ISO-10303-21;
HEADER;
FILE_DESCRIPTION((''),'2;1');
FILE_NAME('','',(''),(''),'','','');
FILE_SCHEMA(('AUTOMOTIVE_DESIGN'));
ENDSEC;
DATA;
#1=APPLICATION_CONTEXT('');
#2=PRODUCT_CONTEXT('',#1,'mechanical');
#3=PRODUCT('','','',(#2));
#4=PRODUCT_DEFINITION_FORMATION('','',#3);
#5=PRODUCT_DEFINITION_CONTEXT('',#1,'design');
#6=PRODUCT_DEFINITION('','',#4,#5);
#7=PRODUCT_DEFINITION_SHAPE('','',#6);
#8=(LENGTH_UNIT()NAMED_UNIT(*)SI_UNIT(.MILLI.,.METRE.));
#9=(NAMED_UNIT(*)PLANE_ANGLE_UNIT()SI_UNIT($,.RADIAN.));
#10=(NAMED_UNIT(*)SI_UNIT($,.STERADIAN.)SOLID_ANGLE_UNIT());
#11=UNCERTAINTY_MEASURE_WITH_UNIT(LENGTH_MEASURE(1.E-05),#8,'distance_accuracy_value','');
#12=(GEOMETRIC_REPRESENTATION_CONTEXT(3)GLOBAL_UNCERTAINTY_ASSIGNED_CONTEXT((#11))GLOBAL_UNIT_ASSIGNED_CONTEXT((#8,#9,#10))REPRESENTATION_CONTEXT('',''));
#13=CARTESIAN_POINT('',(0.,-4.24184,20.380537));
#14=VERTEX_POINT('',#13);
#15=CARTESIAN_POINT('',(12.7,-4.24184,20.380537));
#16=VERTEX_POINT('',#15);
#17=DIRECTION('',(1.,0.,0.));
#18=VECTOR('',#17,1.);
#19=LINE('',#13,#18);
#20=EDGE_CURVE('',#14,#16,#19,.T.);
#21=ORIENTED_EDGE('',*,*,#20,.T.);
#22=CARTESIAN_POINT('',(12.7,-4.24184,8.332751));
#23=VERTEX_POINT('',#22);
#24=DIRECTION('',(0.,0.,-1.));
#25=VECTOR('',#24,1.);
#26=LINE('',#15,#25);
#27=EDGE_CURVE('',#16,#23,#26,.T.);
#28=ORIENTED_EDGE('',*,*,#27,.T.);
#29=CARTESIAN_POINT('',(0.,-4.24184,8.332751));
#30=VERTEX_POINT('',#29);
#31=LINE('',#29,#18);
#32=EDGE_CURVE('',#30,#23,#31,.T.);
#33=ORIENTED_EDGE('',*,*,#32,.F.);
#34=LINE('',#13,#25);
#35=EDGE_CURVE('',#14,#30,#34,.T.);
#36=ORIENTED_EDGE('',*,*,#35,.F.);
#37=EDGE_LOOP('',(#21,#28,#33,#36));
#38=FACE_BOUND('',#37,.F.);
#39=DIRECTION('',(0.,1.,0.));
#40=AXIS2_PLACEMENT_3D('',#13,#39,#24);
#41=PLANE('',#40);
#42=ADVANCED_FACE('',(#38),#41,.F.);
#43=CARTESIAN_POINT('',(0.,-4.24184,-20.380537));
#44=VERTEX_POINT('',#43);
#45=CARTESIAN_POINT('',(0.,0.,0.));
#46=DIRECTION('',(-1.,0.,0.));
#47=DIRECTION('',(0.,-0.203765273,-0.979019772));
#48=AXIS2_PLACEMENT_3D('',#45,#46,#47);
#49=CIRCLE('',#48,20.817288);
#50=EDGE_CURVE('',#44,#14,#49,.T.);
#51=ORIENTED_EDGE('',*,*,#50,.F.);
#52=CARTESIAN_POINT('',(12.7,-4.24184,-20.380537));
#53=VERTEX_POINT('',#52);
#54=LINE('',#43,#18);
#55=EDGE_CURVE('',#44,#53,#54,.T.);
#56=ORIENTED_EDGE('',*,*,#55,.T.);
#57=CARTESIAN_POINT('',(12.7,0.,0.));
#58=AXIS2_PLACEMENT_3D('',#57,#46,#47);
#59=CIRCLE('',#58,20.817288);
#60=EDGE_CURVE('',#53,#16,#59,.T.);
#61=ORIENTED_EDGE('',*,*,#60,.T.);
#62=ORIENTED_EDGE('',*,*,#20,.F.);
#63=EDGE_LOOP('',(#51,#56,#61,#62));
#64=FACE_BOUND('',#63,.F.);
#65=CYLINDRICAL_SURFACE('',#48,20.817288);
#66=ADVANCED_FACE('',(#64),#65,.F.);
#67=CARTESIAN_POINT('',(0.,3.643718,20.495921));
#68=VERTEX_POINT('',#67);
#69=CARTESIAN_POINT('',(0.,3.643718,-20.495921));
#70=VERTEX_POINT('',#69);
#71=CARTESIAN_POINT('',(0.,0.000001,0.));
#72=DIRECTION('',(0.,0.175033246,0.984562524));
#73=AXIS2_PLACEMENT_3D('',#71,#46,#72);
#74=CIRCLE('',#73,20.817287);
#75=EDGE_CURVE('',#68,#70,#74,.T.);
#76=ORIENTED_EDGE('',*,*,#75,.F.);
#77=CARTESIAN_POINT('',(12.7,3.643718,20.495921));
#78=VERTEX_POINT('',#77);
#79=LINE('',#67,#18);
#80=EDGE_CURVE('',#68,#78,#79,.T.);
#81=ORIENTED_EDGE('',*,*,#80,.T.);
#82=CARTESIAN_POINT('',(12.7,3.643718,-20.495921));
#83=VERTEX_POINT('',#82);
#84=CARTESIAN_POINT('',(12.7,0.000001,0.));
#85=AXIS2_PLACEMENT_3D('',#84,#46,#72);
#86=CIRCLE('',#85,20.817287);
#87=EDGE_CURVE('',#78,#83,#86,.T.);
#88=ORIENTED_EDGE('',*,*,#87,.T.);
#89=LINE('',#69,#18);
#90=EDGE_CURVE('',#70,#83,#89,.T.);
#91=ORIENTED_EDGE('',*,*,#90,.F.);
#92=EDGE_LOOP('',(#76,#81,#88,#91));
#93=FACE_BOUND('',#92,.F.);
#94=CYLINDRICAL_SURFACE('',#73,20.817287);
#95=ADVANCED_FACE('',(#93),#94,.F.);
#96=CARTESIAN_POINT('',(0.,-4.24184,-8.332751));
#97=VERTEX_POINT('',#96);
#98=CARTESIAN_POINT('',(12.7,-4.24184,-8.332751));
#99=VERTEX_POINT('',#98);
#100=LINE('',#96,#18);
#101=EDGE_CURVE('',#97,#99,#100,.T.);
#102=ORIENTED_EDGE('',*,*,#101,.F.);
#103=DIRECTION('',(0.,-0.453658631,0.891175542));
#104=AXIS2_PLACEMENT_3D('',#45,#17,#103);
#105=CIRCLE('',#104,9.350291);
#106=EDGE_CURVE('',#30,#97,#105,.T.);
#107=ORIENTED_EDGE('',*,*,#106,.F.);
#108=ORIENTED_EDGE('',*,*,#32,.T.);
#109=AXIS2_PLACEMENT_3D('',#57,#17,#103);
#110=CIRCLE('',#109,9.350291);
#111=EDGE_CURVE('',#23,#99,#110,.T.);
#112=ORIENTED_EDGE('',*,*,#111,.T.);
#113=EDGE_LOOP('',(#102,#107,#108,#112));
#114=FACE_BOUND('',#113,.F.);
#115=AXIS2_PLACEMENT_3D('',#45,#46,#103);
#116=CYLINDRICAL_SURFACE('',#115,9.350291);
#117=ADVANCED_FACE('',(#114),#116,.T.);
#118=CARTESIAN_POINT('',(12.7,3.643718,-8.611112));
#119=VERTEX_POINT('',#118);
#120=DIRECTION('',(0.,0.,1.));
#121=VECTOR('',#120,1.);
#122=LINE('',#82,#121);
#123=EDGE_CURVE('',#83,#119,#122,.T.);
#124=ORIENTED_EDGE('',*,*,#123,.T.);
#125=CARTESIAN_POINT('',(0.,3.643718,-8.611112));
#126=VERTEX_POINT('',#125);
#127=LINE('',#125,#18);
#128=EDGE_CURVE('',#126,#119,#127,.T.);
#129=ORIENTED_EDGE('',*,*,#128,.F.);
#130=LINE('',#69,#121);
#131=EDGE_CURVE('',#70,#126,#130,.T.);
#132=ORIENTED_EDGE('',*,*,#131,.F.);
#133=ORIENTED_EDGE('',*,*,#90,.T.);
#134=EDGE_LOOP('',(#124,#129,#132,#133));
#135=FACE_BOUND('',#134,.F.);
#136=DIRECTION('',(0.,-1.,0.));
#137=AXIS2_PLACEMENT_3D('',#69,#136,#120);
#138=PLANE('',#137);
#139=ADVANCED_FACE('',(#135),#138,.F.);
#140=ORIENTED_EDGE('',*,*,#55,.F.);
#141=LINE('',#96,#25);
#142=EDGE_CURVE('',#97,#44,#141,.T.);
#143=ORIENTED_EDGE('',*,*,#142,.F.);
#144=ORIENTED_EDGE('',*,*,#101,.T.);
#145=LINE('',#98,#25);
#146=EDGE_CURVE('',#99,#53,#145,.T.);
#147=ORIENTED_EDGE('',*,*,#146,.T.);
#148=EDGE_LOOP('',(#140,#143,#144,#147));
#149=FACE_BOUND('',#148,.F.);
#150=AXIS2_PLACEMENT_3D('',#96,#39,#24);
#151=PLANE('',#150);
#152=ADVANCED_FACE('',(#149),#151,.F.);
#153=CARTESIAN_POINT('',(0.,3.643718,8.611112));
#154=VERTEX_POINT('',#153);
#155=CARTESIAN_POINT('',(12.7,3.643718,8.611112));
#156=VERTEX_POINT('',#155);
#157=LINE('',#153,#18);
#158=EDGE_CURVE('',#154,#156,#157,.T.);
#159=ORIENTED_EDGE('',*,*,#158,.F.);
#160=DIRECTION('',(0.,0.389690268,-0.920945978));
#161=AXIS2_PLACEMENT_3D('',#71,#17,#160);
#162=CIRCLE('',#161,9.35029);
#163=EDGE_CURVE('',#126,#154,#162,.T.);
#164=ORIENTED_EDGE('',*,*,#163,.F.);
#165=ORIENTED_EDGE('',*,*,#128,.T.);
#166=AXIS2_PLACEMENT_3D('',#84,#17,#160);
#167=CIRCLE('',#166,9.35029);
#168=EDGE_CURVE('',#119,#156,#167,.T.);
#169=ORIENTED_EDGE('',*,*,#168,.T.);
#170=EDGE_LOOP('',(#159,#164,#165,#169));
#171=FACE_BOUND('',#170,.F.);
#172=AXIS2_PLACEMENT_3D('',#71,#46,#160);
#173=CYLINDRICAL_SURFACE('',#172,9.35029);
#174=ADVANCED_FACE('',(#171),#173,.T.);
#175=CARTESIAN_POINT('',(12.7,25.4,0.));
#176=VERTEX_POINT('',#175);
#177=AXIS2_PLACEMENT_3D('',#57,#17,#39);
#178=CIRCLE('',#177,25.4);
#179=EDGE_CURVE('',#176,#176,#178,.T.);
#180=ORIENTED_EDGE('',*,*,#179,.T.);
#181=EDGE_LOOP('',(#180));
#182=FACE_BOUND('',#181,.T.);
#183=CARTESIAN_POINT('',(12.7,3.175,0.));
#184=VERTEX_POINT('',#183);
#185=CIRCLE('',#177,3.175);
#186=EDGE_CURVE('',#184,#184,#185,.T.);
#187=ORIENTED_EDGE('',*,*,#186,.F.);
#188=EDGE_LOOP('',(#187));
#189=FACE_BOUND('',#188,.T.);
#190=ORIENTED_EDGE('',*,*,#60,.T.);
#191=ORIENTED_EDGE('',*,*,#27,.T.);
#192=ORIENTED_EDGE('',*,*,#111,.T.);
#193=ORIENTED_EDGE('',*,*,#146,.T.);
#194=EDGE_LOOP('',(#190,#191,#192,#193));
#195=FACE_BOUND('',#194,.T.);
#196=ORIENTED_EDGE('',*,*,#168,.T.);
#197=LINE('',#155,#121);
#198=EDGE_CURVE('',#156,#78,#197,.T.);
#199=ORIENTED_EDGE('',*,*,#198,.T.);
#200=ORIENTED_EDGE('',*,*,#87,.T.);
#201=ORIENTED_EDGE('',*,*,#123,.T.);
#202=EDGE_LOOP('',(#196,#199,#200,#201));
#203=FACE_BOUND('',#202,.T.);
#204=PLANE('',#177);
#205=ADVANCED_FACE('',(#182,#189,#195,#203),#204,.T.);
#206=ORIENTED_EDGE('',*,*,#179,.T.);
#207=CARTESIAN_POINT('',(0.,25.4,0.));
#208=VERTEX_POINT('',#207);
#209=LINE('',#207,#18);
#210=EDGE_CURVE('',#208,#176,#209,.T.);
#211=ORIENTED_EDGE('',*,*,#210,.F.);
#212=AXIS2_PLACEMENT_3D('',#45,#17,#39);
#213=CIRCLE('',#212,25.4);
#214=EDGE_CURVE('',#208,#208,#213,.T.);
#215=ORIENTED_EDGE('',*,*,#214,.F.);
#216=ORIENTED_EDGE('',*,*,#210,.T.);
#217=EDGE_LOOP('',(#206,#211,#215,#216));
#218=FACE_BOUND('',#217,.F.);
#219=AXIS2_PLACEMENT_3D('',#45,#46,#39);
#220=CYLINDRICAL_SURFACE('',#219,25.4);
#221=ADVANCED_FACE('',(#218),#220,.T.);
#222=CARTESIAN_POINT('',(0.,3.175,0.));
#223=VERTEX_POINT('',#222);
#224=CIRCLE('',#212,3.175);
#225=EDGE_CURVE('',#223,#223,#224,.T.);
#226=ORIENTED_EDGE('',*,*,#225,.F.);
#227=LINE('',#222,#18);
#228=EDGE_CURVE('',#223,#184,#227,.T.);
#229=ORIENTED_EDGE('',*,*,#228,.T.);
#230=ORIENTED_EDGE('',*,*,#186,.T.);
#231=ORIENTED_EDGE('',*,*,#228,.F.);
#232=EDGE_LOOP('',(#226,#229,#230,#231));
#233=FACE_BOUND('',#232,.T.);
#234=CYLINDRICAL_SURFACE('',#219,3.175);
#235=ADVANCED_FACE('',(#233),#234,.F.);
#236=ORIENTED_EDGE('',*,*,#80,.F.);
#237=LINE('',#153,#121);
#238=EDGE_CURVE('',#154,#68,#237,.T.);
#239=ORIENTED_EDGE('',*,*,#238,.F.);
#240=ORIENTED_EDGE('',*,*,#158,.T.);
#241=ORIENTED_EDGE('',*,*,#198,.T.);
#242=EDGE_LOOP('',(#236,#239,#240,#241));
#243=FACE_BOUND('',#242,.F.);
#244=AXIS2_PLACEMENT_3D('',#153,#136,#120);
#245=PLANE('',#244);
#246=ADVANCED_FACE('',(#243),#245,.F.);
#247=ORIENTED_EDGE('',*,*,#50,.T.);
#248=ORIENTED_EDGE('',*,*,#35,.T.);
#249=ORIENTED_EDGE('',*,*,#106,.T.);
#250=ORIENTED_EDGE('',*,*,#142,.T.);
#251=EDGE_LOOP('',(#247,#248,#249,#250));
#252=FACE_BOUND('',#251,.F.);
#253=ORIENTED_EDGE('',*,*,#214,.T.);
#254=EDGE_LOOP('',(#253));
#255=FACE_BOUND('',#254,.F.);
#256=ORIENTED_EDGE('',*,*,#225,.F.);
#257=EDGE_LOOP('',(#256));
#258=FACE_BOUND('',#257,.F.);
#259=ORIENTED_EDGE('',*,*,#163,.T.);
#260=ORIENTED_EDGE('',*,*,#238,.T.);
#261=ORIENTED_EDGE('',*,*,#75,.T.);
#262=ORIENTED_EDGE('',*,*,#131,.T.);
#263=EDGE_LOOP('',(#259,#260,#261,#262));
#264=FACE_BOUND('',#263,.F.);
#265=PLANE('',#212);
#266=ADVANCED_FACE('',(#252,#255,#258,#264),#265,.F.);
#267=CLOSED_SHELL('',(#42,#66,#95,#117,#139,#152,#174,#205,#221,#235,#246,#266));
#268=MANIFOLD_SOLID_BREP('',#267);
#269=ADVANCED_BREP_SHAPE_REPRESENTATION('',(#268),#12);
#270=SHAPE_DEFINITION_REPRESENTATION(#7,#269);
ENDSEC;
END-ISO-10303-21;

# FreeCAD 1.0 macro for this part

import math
import FreeCAD as App
import Part
import Sketcher
Q = App.Units.Quantity

doc = App.newDocument("Part")
body = doc.addObject("PartDesign::Body", "Body")

# Sketch on YZ plane
sketch1 = body.newObject("Sketcher::SketchObject", "Sketch")
sketch1.AttachmentSupport = (doc.getObject("YZ_Plane"), [""])
sketch1.MapMode = "FlatFace"
sketch1.addGeometry(Part.Circle(App.Vector(0, 0, 0), App.Vector(0, 0, 1), 25.4), False)
sketch1.addGeometry(Part.LineSegment(App.Vector(-4.24184, -8.332751, 0), App.Vector(-4.24184, -20.380537, 0)), False)
sketch1.addGeometry(Part.ArcOfCircle(Part.Circle(App.Vector(0, 0, 0), App.Vector(0, 0, 1), 20.817288), math.radians(101.757229), math.radians(258.242771)), False)
sketch1.addGeometry(Part.LineSegment(App.Vector(-4.24184, 20.380537, 0), App.Vector(-4.24184, 8.332751, 0)), False)
sketch1.addGeometry(Part.ArcOfCircle(Part.Circle(App.Vector(0, 0, 0), App.Vector(0, 0, 1), 9.350291), math.radians(116.978661), math.radians(243.021339)), False)
sketch1.addGeometry(Part.Circle(App.Vector(0, 0, 0), App.Vector(0, 0, 1), 3.175), False)
sketch1.addGeometry(Part.LineSegment(App.Vector(3.643718, -20.495921, 0), App.Vector(3.643718, -8.611112, 0)), False)
sketch1.addGeometry(Part.ArcOfCircle(Part.Circle(App.Vector(0.000001, 0, 0), App.Vector(0, 0, 1), 9.35029), math.radians(-67.064772), math.radians(67.064772)), False)
sketch1.addGeometry(Part.LineSegment(App.Vector(3.643718, 8.611112, 0), App.Vector(3.643718, 20.495921, 0)), False)
sketch1.addGeometry(Part.ArcOfCircle(Part.Circle(App.Vector(0.000001, 0, 0), App.Vector(0, 0, 1), 20.817287), math.radians(-79.919407), math.radians(79.919407)), False)
sketch1.addConstraint(Sketcher.Constraint("Coincident", 1, 2, 2, 2))
sketch1.addConstraint(Sketcher.Constraint("Coincident", 2, 1, 3, 1))
sketch1.addConstraint(Sketcher.Constraint("Coincident", 3, 2, 4, 1))
sketch1.addConstraint(Sketcher.Constraint("Coincident", 4, 2, 1, 1))
sketch1.addConstraint(Sketcher.Constraint("Coincident", 6, 2, 7, 1))
sketch1.addConstraint(Sketcher.Constraint("Coincident", 7, 2, 8, 1))
sketch1.addConstraint(Sketcher.Constraint("Coincident", 8, 2, 9, 2))
sketch1.addConstraint(Sketcher.Constraint("Coincident", 9, 1, 6, 1))
sketch1.addConstraint(Sketcher.Constraint("Vertical", 1))
sketch1.addConstraint(Sketcher.Constraint("Vertical", 3))
sketch1.addConstraint(Sketcher.Constraint("Vertical", 6))
sketch1.addConstraint(Sketcher.Constraint("Vertical", 8))
sketch1.addConstraint(Sketcher.Constraint("Coincident", 0, 3, -1, 1))
sketch1.addConstraint(Sketcher.Constraint("Coincident", 2, 3, -1, 1))
sketch1.addConstraint(Sketcher.Constraint("Coincident", 4, 3, -1, 1))
sketch1.addConstraint(Sketcher.Constraint("Coincident", 5, 3, -1, 1))
sketch1.addConstraint(Sketcher.Constraint("Coincident", 7, 3, -1, 1))
sketch1.addConstraint(Sketcher.Constraint("Coincident", 9, 3, -1, 1))
sketch1.addConstraint(Sketcher.Constraint("Equal", 4, 7))
sketch1.addConstraint(Sketcher.Constraint("Equal", 2, 9))
sketch1.addConstraint(Sketcher.Constraint("Vertical", 1, 2, 2, 1))
sketch1.addConstraint(Sketcher.Constraint("Vertical", 6, 2, 7, 2))
sketch1.addConstraint(Sketcher.Constraint("Diameter", 0, Q("2 in")))
sketch1.addConstraint(Sketcher.Constraint("Diameter", 5, Q("0.25 in")))
sketch1.addConstraint(Sketcher.Constraint("Radius", 2, 20.817288))
sketch1.addConstraint(Sketcher.Constraint("Radius", 4, 9.350291))
sketch1.addConstraint(Sketcher.Constraint("DistanceY", 6, 1, 6, 2, 11.884809))
sketch1.addConstraint(Sketcher.Constraint("DistanceY", 1, 2, 1, 1, 12.047786))
pad1 = body.newObject("PartDesign::Pad", "Pad")
pad1.Profile = sketch1
pad1.Length = Q("0.5 in")

doc.recompute()
